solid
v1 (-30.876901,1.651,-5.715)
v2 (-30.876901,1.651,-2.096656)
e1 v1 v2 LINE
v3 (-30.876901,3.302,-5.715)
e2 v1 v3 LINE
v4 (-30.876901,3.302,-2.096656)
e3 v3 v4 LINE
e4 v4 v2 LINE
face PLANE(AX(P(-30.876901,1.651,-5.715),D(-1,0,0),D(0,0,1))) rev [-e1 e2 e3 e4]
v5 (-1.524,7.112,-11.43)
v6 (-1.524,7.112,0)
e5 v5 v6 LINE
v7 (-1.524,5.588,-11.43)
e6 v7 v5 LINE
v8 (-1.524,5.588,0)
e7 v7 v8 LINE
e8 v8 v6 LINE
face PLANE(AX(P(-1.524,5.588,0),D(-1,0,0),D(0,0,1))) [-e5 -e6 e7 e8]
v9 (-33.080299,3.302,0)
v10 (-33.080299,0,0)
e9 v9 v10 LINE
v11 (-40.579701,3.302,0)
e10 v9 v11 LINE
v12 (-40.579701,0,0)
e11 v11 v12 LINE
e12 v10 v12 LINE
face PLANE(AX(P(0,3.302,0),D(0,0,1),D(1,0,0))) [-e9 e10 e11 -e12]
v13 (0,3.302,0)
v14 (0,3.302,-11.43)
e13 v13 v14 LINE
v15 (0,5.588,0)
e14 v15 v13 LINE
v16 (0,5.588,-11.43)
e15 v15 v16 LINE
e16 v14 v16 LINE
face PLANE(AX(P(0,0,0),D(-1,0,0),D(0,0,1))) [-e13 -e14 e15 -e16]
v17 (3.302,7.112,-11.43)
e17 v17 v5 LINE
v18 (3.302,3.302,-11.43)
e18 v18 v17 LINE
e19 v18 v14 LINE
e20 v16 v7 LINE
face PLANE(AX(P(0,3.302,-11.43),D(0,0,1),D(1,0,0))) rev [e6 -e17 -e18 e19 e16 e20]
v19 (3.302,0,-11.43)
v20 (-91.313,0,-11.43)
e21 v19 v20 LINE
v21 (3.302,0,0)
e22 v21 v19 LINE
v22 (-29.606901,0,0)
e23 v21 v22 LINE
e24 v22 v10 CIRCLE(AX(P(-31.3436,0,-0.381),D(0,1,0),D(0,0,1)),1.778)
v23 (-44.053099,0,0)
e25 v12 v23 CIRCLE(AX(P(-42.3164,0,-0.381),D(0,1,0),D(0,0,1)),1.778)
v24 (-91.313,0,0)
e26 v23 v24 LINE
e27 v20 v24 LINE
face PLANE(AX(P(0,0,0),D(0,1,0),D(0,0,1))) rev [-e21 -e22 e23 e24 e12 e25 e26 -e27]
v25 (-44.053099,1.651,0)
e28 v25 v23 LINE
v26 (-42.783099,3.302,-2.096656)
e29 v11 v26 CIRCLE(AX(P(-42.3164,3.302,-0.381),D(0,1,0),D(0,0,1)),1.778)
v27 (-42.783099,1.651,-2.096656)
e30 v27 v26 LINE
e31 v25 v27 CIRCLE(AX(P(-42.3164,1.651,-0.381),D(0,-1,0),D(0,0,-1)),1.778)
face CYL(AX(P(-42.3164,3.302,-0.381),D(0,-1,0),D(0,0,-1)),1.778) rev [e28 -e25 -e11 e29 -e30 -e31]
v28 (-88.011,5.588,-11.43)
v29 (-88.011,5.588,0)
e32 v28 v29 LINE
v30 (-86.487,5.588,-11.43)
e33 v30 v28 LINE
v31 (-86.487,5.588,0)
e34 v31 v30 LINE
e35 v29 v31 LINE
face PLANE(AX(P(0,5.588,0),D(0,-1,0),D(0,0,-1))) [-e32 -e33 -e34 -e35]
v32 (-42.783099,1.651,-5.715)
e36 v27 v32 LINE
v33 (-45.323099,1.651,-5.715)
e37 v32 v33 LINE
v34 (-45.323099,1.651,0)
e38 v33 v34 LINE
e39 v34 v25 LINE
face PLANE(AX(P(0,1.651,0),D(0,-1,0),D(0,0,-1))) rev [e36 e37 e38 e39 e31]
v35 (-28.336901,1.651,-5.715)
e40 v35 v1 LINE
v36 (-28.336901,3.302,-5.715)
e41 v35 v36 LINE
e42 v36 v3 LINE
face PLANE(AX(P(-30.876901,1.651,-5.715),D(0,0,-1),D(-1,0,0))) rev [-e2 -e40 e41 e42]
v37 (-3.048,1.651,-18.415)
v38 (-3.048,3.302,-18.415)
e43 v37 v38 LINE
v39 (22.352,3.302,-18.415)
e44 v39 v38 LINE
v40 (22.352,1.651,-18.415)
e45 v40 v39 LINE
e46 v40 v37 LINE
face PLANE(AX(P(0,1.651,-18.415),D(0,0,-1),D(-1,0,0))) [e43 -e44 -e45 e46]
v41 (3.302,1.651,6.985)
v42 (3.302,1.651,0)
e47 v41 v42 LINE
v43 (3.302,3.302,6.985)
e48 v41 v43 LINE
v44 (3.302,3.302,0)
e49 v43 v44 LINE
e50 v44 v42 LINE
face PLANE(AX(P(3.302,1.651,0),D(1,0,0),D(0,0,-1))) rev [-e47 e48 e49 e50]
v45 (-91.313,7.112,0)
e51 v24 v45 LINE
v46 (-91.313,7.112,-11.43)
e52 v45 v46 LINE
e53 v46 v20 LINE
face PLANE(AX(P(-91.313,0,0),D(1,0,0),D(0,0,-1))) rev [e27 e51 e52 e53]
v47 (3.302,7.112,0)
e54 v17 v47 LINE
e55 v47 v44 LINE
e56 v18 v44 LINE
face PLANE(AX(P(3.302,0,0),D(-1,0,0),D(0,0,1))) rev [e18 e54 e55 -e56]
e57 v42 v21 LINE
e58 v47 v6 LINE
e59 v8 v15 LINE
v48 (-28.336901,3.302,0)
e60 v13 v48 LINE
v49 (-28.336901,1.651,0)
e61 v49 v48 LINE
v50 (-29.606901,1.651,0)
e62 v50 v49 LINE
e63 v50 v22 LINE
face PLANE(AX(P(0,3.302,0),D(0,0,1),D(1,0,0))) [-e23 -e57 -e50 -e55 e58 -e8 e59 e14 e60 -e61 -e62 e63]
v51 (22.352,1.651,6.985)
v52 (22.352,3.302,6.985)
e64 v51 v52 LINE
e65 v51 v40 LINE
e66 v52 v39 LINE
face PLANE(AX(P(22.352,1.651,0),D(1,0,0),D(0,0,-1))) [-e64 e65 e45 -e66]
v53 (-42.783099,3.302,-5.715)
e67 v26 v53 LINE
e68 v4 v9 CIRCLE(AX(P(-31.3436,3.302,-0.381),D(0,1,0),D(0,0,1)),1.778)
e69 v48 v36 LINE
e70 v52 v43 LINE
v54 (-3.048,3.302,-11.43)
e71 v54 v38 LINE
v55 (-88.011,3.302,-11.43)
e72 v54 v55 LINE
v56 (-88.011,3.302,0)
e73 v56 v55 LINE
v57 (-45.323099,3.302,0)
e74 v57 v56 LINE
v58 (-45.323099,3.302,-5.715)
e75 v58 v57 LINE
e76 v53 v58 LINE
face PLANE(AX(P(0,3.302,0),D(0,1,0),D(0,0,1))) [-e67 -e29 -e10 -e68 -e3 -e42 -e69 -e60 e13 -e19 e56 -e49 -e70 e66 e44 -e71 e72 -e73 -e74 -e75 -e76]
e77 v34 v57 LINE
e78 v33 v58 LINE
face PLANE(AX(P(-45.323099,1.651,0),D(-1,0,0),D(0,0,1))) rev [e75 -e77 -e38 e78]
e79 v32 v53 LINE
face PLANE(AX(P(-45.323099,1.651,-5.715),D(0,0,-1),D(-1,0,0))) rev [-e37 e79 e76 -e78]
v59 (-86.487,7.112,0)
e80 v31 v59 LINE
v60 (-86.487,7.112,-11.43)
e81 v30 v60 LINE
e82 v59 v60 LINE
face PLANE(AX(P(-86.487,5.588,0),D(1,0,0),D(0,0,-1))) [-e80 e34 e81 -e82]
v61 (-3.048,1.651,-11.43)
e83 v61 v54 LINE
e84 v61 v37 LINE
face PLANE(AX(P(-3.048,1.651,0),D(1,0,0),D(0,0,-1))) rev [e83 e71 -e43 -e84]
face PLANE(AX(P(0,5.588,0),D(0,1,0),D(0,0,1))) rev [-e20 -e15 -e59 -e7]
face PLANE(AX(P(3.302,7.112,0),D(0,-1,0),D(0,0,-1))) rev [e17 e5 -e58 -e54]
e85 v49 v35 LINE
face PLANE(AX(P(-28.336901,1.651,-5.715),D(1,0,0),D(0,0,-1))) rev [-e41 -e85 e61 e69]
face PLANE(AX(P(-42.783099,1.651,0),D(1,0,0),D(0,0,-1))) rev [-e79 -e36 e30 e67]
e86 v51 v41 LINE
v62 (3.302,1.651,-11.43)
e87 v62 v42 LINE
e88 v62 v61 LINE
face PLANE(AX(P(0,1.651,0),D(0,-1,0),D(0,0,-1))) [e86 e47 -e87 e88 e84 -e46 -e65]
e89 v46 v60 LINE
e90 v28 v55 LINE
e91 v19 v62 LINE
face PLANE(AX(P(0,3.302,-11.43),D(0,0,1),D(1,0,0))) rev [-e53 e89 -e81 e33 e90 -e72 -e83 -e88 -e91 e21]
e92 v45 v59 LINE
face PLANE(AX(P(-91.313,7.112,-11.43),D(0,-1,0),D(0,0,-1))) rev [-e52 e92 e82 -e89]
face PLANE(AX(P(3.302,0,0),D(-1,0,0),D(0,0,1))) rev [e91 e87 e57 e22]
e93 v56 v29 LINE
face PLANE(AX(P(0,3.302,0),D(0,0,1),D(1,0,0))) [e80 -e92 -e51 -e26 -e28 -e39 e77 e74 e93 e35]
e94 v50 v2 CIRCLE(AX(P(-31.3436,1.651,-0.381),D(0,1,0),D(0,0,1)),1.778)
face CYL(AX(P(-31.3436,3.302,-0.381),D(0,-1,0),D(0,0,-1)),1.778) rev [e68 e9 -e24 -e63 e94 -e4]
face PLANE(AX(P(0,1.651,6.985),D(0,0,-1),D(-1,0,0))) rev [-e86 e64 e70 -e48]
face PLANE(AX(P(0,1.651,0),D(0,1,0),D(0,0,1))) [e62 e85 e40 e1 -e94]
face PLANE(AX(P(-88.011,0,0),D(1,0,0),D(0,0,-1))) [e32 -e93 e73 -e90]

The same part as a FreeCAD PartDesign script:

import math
import FreeCAD as App
import Part
import Sketcher
from FreeCAD import Vector
Q = App.Units.Quantity


def add_polygon(sketch, points):
    """Adds a closed chain of lines whose ends are joined by coincident constraints."""
    first, n = sketch.GeometryCount, len(points)
    for a, b in zip(points, points[1:] + points[:1]):
        sketch.addGeometry(Part.LineSegment(App.Vector(*a, 0), App.Vector(*b, 0)), False)
    for i in range(n):
        sketch.addConstraint(Sketcher.Constraint("Coincident", first + i, 2, first + (i + 1) % n, 1))

doc = App.newDocument("Part")
body = doc.addObject("PartDesign::Body", "Body")

# Sketch on XZ plane
sketch1 = body.newObject("Sketcher::SketchObject", "Sketch")
sketch1.AttachmentSupport = (doc.getObject("XZ_Plane"), [""])
sketch1.MapMode = "FlatFace"
sketch1.addGeometry([
    Part.LineSegment(Vector(-29.606901, 0, 0), Vector(0, 0, 0)),  # 0
    Part.LineSegment(Vector(0, 0, 0), Vector(0, -11.43, 0)),  # 1
    Part.LineSegment(Vector(0, -11.43, 0), Vector(-88.011, -11.43, 0)),  # 2
    Part.LineSegment(Vector(-88.011, -11.43, 0), Vector(-88.011, 0, 0)),  # 3
    Part.LineSegment(Vector(-88.011, 0, 0), Vector(-44.053099, 0, 0)),  # 4
    Part.ArcOfCircle(Part.Circle(Vector(-42.3164, -0.381, 0), Vector(0, 0, 1), 1.778), math.radians(167.626375), math.radians(360)),  # 5
    Part.ArcOfCircle(Part.Circle(Vector(-42.3164, -0.381, 0), Vector(0, 0, 1), 1.778), math.radians(0), math.radians(12.373625)),  # 6
    Part.LineSegment(Vector(-40.579701, 0, 0), Vector(-33.080299, 0, 0)),  # 7
    Part.ArcOfCircle(Part.Circle(Vector(-31.3436, -0.381, 0), Vector(0, 0, 1), 1.778), math.radians(167.626375), math.radians(360)),  # 8
    Part.ArcOfCircle(Part.Circle(Vector(-31.3436, -0.381, 0), Vector(0, 0, 1), 1.778), math.radians(0), math.radians(12.373625)),  # 9
], False)
sketch1.addConstraint([
    Sketcher.Constraint("Coincident", 0, 2, 1, 1),
    Sketcher.Constraint("Coincident", 1, 2, 2, 1),
    Sketcher.Constraint("Coincident", 2, 2, 3, 1),
    Sketcher.Constraint("Coincident", 3, 2, 4, 1),
    Sketcher.Constraint("Coincident", 4, 2, 5, 1),
    Sketcher.Constraint("Tangent", 5, 2, 6, 1),
    Sketcher.Constraint("Coincident", 6, 2, 7, 1),
    Sketcher.Constraint("Coincident", 7, 2, 8, 1),
    Sketcher.Constraint("Tangent", 8, 2, 9, 1),
    Sketcher.Constraint("Coincident", 9, 2, 0, 1),
    Sketcher.Constraint("Horizontal", 0),
    Sketcher.Constraint("Vertical", 1),
    Sketcher.Constraint("Horizontal", 2),
    Sketcher.Constraint("Vertical", 3),
    Sketcher.Constraint("Horizontal", 4),
    Sketcher.Constraint("Horizontal", 7),
    Sketcher.Constraint("Coincident", 0, 2, -1, 1),
    Sketcher.Constraint("Equal", 5, 6),
    Sketcher.Constraint("Equal", 6, 8),
    Sketcher.Constraint("Equal", 8, 9),
    Sketcher.Constraint("PointOnObject", 3, 2, -1),
    Sketcher.Constraint("PointOnObject", 6, 2, -1),
    Sketcher.Constraint("Horizontal", 6, 3, 8, 3),
    Sketcher.Constraint("Horizontal", 9, 3, 5, 2),
    Sketcher.Constraint("Horizontal", 5, 2, 8, 2),
    Sketcher.Constraint("Radius", 5, Q("0.07 in")),
    Sketcher.Constraint("DistanceY", 1, 2, 1, 1, Q("0.45 in")),
    Sketcher.Constraint("DistanceX", 2, 2, 2, 1, Q("3.465 in")),
    Sketcher.Constraint("DistanceX", 5, 3, -1, 1, Q("1.666 in")),
    Sketcher.Constraint("DistanceY", 5, 3, -1, 1, Q("0.015 in")),
    Sketcher.Constraint("DistanceX", 8, 3, -1, 1, Q("1.234 in")),
])
pad1 = body.newObject("PartDesign::Pad", "Pad")
pad1.Profile = sketch1
pad1.Length = Q("0.13 in")
pad1.Reversed = True

# Sketch on YZ plane
sketch2 = body.newObject("Sketcher::SketchObject", "Sketch001")
sketch2.AttachmentSupport = (doc.getObject("YZ_Plane"), [""])
sketch2.MapMode = "FlatFace"
add_polygon(sketch2, [(7.112, 0), (0, 0), (0, -11.43), (7.112, -11.43)])  # lines 0-3
sketch2.addConstraint([
    Sketcher.Constraint("Horizontal", 0),
    Sketcher.Constraint("Vertical", 1),
    Sketcher.Constraint("Horizontal", 2),
    Sketcher.Constraint("Vertical", 3),
    Sketcher.Constraint("Coincident", 0, 2, -1, 1),
    Sketcher.Constraint("DistanceX", 0, 2, 0, 1, Q("0.28 in")),
    Sketcher.Constraint("DistanceY", 1, 2, 1, 1, Q("0.45 in")),
])
pad2 = body.newObject("PartDesign::Pad", "Pad001")
pad2.Profile = sketch2
pad2.Length = Q("0.13 in")

# Sketch on YZ plane
sketch3 = body.newObject("Sketcher::SketchObject", "Sketch002")
sketch3.AttachmentSupport = (doc.getObject("YZ_Plane"), [""])
sketch3.MapMode = "FlatFace"
sketch3.AttachmentOffset = App.Placement(Vector(0, 0, -3.465 * 25.4), App.Rotation())
add_polygon(sketch3, [(7.112, -11.43), (0, -11.43), (0, 0), (7.112, 0)])  # lines 0-3
sketch3.addConstraint([
    Sketcher.Constraint("Horizontal", 0),
    Sketcher.Constraint("Vertical", 1),
    Sketcher.Constraint("Horizontal", 2),
    Sketcher.Constraint("Vertical", 3),
    Sketcher.Constraint("Coincident", 1, 2, -1, 1),
    Sketcher.Constraint("DistanceX", 0, 2, 0, 1, Q("0.28 in")),
    Sketcher.Constraint("DistanceY", 1, 1, 1, 2, Q("0.45 in")),
])
pad3 = body.newObject("PartDesign::Pad", "Pad002")
pad3.Profile = sketch3
pad3.Length = Q("0.13 in")
pad3.Reversed = True

# Sketch on XZ plane
sketch4 = body.newObject("Sketcher::SketchObject", "Sketch003")
sketch4.AttachmentSupport = (doc.getObject("XZ_Plane"), [""])
sketch4.MapMode = "FlatFace"
sketch4.AttachmentOffset = App.Placement(Vector(0, 0, -0.28 * 25.4), App.Rotation())
add_polygon(sketch4, [(-88.011, -11.43), (-88.011, 0), (-86.487, 0), (-86.487, -11.43)])  # lines 0-3
sketch4.addConstraint([
    Sketcher.Constraint("Vertical", 0),
    Sketcher.Constraint("Horizontal", 1),
    Sketcher.Constraint("Vertical", 2),
    Sketcher.Constraint("Horizontal", 3),
    Sketcher.Constraint("PointOnObject", 0, 2, -1),
    Sketcher.Constraint("DistanceX", 1, 1, 1, 2, Q("0.06 in")),
    Sketcher.Constraint("DistanceY", 0, 1, 0, 2, Q("0.45 in")),
    Sketcher.Constraint("DistanceX", 0, 2, -1, 1, Q("3.465 in")),
])
pad4 = body.newObject("PartDesign::Pad", "Pad003")
pad4.Profile = sketch4
pad4.Length = Q("0.06 in")

# Sketch on XZ plane
sketch5 = body.newObject("Sketcher::SketchObject", "Sketch004")
sketch5.AttachmentSupport = (doc.getObject("XZ_Plane"), [""])
sketch5.MapMode = "FlatFace"
sketch5.AttachmentOffset = App.Placement(Vector(0, 0, -0.28 * 25.4), App.Rotation())
add_polygon(sketch5, [(-1.524, -11.43), (-1.524, 0), (0, 0), (0, -11.43)])  # lines 0-3
sketch5.addConstraint([
    Sketcher.Constraint("Vertical", 0),
    Sketcher.Constraint("Horizontal", 1),
    Sketcher.Constraint("Vertical", 2),
    Sketcher.Constraint("Horizontal", 3),
    Sketcher.Constraint("Coincident", 1, 2, -1, 1),
    Sketcher.Constraint("DistanceX", 1, 1, 1, 2, Q("0.06 in")),
    Sketcher.Constraint("DistanceY", 0, 1, 0, 2, Q("0.45 in")),
])
pad5 = body.newObject("PartDesign::Pad", "Pad004")
pad5.Profile = sketch5
pad5.Length = Q("0.06 in")

# Sketch on XZ plane
sketch6 = body.newObject("Sketcher::SketchObject", "Sketch005")
sketch6.AttachmentSupport = (doc.getObject("XZ_Plane"), [""])
sketch6.MapMode = "FlatFace"
sketch6.AttachmentOffset = App.Placement(Vector(0, 0, -0.13 * 25.4), App.Rotation())
add_polygon(sketch6, [(-45.323099, -5.715), (-45.323099, 0), (-42.783099, 0), (-42.783099, -5.715)])  # lines 0-3
add_polygon(sketch6, [(-30.876901, -5.715), (-30.876901, 0), (-28.336901, 0), (-28.336901, -5.715)])  # lines 4-7
sketch6.addConstraint([
    Sketcher.Constraint("Vertical", 0),
    Sketcher.Constraint("Horizontal", 1),
    Sketcher.Constraint("Vertical", 2),
    Sketcher.Constraint("Horizontal", 3),
    Sketcher.Constraint("Vertical", 4),
    Sketcher.Constraint("Horizontal", 5),
    Sketcher.Constraint("Vertical", 6),
    Sketcher.Constraint("Horizontal", 7),
    Sketcher.Constraint("PointOnObject", 0, 2, -1),
    Sketcher.Constraint("PointOnObject", 4, 2, -1),
    Sketcher.Constraint("Horizontal", 3, 2, 6, 2),
    Sketcher.Constraint("Equal", 3, 5),
    Sketcher.Constraint("DistanceX", 1, 1, 1, 2, Q("0.1 in")),
    Sketcher.Constraint("DistanceY", 0, 1, 0, 2, Q("0.225 in")),
    Sketcher.Constraint("DistanceX", 0, 2, -1, 1, Q("45.323099 mm")),
    Sketcher.Constraint("DistanceX", 4, 2, -1, 1, Q("30.876901 mm")),
])
pocket1 = body.newObject("PartDesign::Pocket", "Pocket")
pocket1.Profile = sketch6
pocket1.Length = Q("0.065 in")
pocket1.Reversed = True

# Sketch on XZ plane
sketch7 = body.newObject("Sketcher::SketchObject", "Sketch006")
sketch7.AttachmentSupport = (doc.getObject("XZ_Plane"), [""])
sketch7.MapMode = "FlatFace"
sketch7.AttachmentOffset = App.Placement(Vector(0, 0, -0.13 * 25.4), App.Rotation())
add_polygon(sketch7, [(-3.048, -11.43), (-3.048, -18.415), (22.352, -18.415), (22.352, 6.985), (3.302, 6.985), (3.302, -11.43)])  # lines 0-5
sketch7.addConstraint([
    Sketcher.Constraint("Vertical", 0),
    Sketcher.Constraint("Horizontal", 1),
    Sketcher.Constraint("Vertical", 2),
    Sketcher.Constraint("Horizontal", 3),
    Sketcher.Constraint("Vertical", 4),
    Sketcher.Constraint("Horizontal", 5),
    Sketcher.Constraint("Equal", 1, 2),
    Sketcher.Constraint("DistanceX", 1, 1, 1, 2, Q("1 in")),
    Sketcher.Constraint("DistanceX", 3, 2, 3, 1, Q("0.75 in")),
    Sketcher.Constraint("DistanceY", 0, 2, 0, 1, Q("0.275 in")),
    Sketcher.Constraint("DistanceX", 0, 2, -1, 1, Q("0.12 in")),
    Sketcher.Constraint("DistanceY", 4, 2, -1, 1, Q("0.45 in")),
])
pad6 = body.newObject("PartDesign::Pad", "Pad005")
pad6.Profile = sketch7
pad6.Length = Q("0.065 in")

doc.recompute()
